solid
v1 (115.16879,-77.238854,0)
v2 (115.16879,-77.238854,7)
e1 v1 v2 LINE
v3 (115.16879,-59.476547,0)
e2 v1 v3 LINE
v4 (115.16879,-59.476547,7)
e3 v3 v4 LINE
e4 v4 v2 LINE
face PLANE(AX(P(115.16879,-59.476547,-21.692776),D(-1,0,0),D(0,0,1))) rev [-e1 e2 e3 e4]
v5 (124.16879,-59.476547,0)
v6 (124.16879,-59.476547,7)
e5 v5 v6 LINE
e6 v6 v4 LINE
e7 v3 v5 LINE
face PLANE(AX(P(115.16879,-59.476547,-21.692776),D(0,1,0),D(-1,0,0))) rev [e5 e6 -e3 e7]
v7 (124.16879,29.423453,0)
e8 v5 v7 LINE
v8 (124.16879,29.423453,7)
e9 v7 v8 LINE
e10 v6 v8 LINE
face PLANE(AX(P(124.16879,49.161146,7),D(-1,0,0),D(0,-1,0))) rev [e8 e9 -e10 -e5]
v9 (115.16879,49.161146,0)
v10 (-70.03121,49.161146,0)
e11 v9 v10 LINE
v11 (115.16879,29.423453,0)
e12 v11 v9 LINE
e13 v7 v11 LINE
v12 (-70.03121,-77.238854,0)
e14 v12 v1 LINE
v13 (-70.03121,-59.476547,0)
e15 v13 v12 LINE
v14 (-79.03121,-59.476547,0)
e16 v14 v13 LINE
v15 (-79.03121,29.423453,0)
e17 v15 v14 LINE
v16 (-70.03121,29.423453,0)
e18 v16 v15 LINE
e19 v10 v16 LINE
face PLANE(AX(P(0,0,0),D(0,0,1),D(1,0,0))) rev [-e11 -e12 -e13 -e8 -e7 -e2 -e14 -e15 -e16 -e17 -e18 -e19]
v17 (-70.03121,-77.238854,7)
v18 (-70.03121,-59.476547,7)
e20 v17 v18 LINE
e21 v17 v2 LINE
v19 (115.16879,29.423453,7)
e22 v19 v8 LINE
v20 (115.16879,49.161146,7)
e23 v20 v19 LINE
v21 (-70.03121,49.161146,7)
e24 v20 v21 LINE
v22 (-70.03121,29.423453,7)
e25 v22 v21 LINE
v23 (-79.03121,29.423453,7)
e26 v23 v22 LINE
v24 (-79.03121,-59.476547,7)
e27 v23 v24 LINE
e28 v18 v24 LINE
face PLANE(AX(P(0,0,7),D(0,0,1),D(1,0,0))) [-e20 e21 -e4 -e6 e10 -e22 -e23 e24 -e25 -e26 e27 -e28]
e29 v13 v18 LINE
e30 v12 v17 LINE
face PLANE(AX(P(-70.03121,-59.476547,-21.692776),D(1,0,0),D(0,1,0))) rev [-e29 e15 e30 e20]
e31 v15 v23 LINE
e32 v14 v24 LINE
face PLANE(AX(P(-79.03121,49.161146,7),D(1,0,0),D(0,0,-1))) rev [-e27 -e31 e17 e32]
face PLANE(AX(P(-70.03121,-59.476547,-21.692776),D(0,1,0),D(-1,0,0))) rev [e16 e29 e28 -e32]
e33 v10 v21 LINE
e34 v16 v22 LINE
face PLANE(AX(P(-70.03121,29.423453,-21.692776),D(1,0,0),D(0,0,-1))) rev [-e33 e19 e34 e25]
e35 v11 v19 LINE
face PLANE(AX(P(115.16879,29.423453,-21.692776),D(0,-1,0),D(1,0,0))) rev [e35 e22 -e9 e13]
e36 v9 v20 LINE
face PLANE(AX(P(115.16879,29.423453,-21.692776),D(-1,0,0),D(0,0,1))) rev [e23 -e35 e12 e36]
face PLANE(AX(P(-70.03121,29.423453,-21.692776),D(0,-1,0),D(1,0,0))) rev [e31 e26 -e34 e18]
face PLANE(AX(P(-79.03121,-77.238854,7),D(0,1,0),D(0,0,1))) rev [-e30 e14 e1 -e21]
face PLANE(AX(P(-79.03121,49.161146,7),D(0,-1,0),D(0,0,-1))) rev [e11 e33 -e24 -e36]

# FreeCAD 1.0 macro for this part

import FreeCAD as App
import Part
import Sketcher

V = App.Vector
Q = App.Units.Quantity


def add_polygon(sketch, points):
    """Adds a closed chain of lines whose ends are joined by coincident constraints."""
    first, n = sketch.GeometryCount, len(points)
    for a, b in zip(points, points[1:] + points[:1]):
        sketch.addGeometry(Part.LineSegment(App.Vector(*a, 0), App.Vector(*b, 0)), False)
    for i in range(n):
        sketch.addConstraint(Sketcher.Constraint("Coincident", first + i, 2, first + (i + 1) % n, 1))

doc = App.newDocument("Part")
body = doc.addObject("PartDesign::Body", "Body")

# Sketch on XY plane
sketch1 = body.newObject("Sketcher::SketchObject", "Sketch")
sketch1.AttachmentSupport = (doc.getObject("XY_Plane"), [""])
sketch1.MapMode = "FlatFace"
add_polygon(sketch1, [(-79, 49), (-79, -77), (124, -77), (124, 49)])  # lines 0-3
sketch1.addConstraint([
    Sketcher.Constraint("Vertical", 0),
    Sketcher.Constraint("Horizontal", 1),
    Sketcher.Constraint("Vertical", 2),
    Sketcher.Constraint("Horizontal", 3),
    Sketcher.Constraint("DistanceX", 1, 1, 1, 2, Q("203.2 mm")),
    Sketcher.Constraint("DistanceY", 0, 2, 0, 1, Q("126.4 mm")),
    Sketcher.Constraint("DistanceX", 0, 2, -1, 1, Q("79.03121 mm")),
    Sketcher.Constraint("DistanceY", 0, 2, -1, 1, Q("77.238854 mm")),
])
pad1 = body.newObject("PartDesign::Pad", "Pad")
pad1.Profile = sketch1
pad1.Length = 7

# Sketch on XY plane
sketch2 = body.newObject("Sketcher::SketchObject", "Sketch001")
sketch2.AttachmentSupport = (doc.getObject("XY_Plane"), [""])
sketch2.MapMode = "FlatFace"
sketch2.AttachmentOffset = App.Placement(V(0, 0, 7), App.Rotation())
add_polygon(sketch2, [(-79, -59), (-79, -77), (-70, -77), (-70, -59)])  # lines 0-3
add_polygon(sketch2, [(115, -59), (115, -77), (124, -77), (124, -59)])  # lines 4-7
add_polygon(sketch2, [(115, 49), (115, 29), (124, 29), (124, 49)])  # lines 8-11
add_polygon(sketch2, [(-79, 49), (-79, 29), (-70, 29), (-70, 49)])  # lines 12-15
sketch2.addConstraint([
    Sketcher.Constraint("Vertical", 0),
    Sketcher.Constraint("Horizontal", 1),
    Sketcher.Constraint("Vertical", 2),
    Sketcher.Constraint("Horizontal", 3),
    Sketcher.Constraint("Vertical", 4),
    Sketcher.Constraint("Horizontal", 5),
    Sketcher.Constraint("Vertical", 6),
    Sketcher.Constraint("Horizontal", 7),
    Sketcher.Constraint("Vertical", 8),
    Sketcher.Constraint("Horizontal", 9),
    Sketcher.Constraint("Vertical", 10),
    Sketcher.Constraint("Horizontal", 11),
    Sketcher.Constraint("Vertical", 12),
    Sketcher.Constraint("Horizontal", 13),
    Sketcher.Constraint("Vertical", 14),
    Sketcher.Constraint("Horizontal", 15),
    Sketcher.Constraint("Horizontal", 1, 2, 4, 2),
    Sketcher.Constraint("Horizontal", 3, 2, 6, 2),
    Sketcher.Constraint("Horizontal", 9, 2, 12, 2),
    Sketcher.Constraint("Horizontal", 11, 2, 14, 2),
    Sketcher.Constraint("Vertical", 7, 2, 8, 2),
    Sketcher.Constraint("Vertical", 6, 2, 9, 2),
    Sketcher.Constraint("Vertical", 3, 2, 12, 2),
    Sketcher.Constraint("Vertical", 2, 2, 13, 2),
    Sketcher.Constraint("Equal", 3, 5),
    Sketcher.Constraint("DistanceX", 1, 1, 1, 2, Q("9 mm")),
    Sketcher.Constraint("DistanceX", 1, 2, 4, 2, Q("185.2 mm")),
    Sketcher.Constraint("DistanceY", 7, 2, 8, 2, Q("88.9 mm")),
    Sketcher.Constraint("DistanceY", 5, 2, 10, 2, Q("126.4 mm")),
    Sketcher.Constraint("DistanceY", 0, 2, 0, 1, Q("17.762307 mm")),
    Sketcher.Constraint("DistanceX", 0, 2, -1, 1, Q("79.03121 mm")),
    Sketcher.Constraint("DistanceY", 0, 2, -1, 1, Q("77.238854 mm")),
])
pocket1 = body.newObject("PartDesign::Pocket", "Pocket")
pocket1.Profile = sketch2
pocket1.Length = 7

doc.recompute()
